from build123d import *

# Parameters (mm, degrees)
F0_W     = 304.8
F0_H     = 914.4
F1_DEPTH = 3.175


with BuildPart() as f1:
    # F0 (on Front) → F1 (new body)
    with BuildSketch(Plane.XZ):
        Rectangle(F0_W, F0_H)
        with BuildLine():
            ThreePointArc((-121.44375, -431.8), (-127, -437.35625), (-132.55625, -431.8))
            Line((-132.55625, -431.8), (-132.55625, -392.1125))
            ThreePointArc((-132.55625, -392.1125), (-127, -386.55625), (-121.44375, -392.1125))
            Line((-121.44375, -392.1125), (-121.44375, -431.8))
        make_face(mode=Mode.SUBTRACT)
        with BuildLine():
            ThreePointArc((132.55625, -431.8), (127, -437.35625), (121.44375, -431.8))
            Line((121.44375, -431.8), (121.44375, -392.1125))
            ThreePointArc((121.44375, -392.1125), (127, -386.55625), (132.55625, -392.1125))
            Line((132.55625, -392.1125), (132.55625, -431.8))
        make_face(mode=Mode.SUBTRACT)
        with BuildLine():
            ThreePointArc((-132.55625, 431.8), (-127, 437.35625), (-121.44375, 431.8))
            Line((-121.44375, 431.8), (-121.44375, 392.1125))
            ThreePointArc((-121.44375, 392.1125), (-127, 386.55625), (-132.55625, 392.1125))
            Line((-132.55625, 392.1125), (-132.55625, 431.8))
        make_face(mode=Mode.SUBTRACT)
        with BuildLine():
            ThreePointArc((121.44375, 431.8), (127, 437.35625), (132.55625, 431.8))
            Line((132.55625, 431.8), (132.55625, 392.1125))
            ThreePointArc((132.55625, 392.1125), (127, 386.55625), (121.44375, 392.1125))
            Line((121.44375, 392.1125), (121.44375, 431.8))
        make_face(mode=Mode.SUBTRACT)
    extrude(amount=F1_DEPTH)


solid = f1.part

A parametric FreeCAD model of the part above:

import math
import FreeCAD as App
import Part
import Sketcher
Q = App.Units.Quantity

doc = App.newDocument("Part")
body = doc.addObject("PartDesign::Body", "Body")

sketch1 = body.newObject("Sketcher::SketchObject", "Sketch")
sketch1.AttachmentSupport = (doc.getObject("XZ_Plane"), [""])
sketch1.MapMode = "FlatFace"
sketch1.addGeometry([
    Part.LineSegment(App.Vector(-152, 457, 0), App.Vector(-152, -457, 0)),
    Part.LineSegment(App.Vector(-152, -457, 0), App.Vector(152, -457, 0)),
    Part.LineSegment(App.Vector(152, -457, 0), App.Vector(152, 457, 0)),
    Part.LineSegment(App.Vector(152, 457, 0), App.Vector(-152, 457, 0)),
    Part.LineSegment(App.Vector(-121, -392, 0), App.Vector(-121, -432, 0)),
    Part.ArcOfCircle(Part.Circle(App.Vector(-127, -432, 0), App.Vector(0, 0, 1), 6), math.radians(180), math.radians(360)),
    Part.LineSegment(App.Vector(-133, -432, 0), App.Vector(-133, -392, 0)),
    Part.ArcOfCircle(Part.Circle(App.Vector(-127, -392, 0), App.Vector(0, 0, 1), 6), math.radians(0), math.radians(180)),
    Part.LineSegment(App.Vector(133, -392, 0), App.Vector(133, -432, 0)),
    Part.ArcOfCircle(Part.Circle(App.Vector(127, -432, 0), App.Vector(0, 0, 1), 6), math.radians(180), math.radians(360)),
    Part.LineSegment(App.Vector(121, -432, 0), App.Vector(121, -392, 0)),
    Part.ArcOfCircle(Part.Circle(App.Vector(127, -392, 0), App.Vector(0, 0, 1), 6), math.radians(0), math.radians(180)),
    Part.LineSegment(App.Vector(-133, 392, 0), App.Vector(-133, 432, 0)),
    Part.ArcOfCircle(Part.Circle(App.Vector(-127, 432, 0), App.Vector(0, 0, 1), 6), math.radians(0), math.radians(180)),
    Part.LineSegment(App.Vector(-121, 432, 0), App.Vector(-121, 392, 0)),
    Part.ArcOfCircle(Part.Circle(App.Vector(-127, 392, 0), App.Vector(0, 0, 1), 6), math.radians(180), math.radians(360)),
    Part.LineSegment(App.Vector(121, 392, 0), App.Vector(121, 432, 0)),
    Part.ArcOfCircle(Part.Circle(App.Vector(127, 432, 0), App.Vector(0, 0, 1), 6), math.radians(0), math.radians(180)),
    Part.LineSegment(App.Vector(133, 432, 0), App.Vector(133, 392, 0)),
    Part.ArcOfCircle(Part.Circle(App.Vector(127, 392, 0), App.Vector(0, 0, 1), 6), math.radians(180), math.radians(360)),
], False)
sketch1.addConstraint([
    Sketcher.Constraint("Coincident", 0, 2, 1, 1),
    Sketcher.Constraint("Coincident", 1, 2, 2, 1),
    Sketcher.Constraint("Coincident", 2, 2, 3, 1),
    Sketcher.Constraint("Coincident", 3, 2, 0, 1),
    Sketcher.Constraint("Tangent", 4, 2, 5, 2),
    Sketcher.Constraint("Tangent", 5, 1, 6, 1),
    Sketcher.Constraint("Tangent", 6, 2, 7, 2),
    Sketcher.Constraint("Tangent", 7, 1, 4, 1),
    Sketcher.Constraint("Tangent", 8, 2, 9, 2),
    Sketcher.Constraint("Tangent", 9, 1, 10, 1),
    Sketcher.Constraint("Tangent", 10, 2, 11, 2),
    Sketcher.Constraint("Tangent", 11, 1, 8, 1),
    Sketcher.Constraint("Tangent", 12, 2, 13, 2),
    Sketcher.Constraint("Tangent", 13, 1, 14, 1),
    Sketcher.Constraint("Tangent", 14, 2, 15, 2),
    Sketcher.Constraint("Tangent", 15, 1, 12, 1),
    Sketcher.Constraint("Tangent", 16, 2, 17, 2),
    Sketcher.Constraint("Tangent", 17, 1, 18, 1),
    Sketcher.Constraint("Tangent", 18, 2, 19, 2),
    Sketcher.Constraint("Tangent", 19, 1, 16, 1),
    Sketcher.Constraint("Vertical", 0),
    Sketcher.Constraint("Horizontal", 1),
    Sketcher.Constraint("Vertical", 2),
    Sketcher.Constraint("Horizontal", 3),
    Sketcher.Constraint("Vertical", 4),
    Sketcher.Constraint("Vertical", 6),
    Sketcher.Constraint("Vertical", 8),
    Sketcher.Constraint("Vertical", 10),
    Sketcher.Constraint("Vertical", 12),
    Sketcher.Constraint("Vertical", 14),
    Sketcher.Constraint("Vertical", 16),
    Sketcher.Constraint("Vertical", 18),
    Sketcher.Constraint("Equal", 7, 9),
    Sketcher.Constraint("Equal", 11, 13),
    Sketcher.Constraint("Equal", 15, 17),
    Sketcher.Constraint("Symmetric", 9, 3, 13, 3, -1, 1),
    Sketcher.Constraint("Symmetric", 5, 3, 17, 3, -1, 1),
    Sketcher.Constraint("Symmetric", 0, 2, 2, 2, -1, 1),
    Sketcher.Constraint("Symmetric", 5, 3, 9, 3, -2),
    Sketcher.Constraint("Horizontal", 7, 3, 11, 3),
    Sketcher.Constraint("Horizontal", 15, 3, 19, 3),
    Sketcher.Constraint("Equal", 10, 12),
    Sketcher.Constraint("DistanceX", 1, 1, 1, 2, Q("12 in")),
    Sketcher.Constraint("DistanceY", 0, 2, 0, 1, Q("36 in")),
    Sketcher.Constraint("DistanceX", 5, 3, -1, 1, Q("5 in")),
    Sketcher.Constraint("DistanceY", 5, 3, -1, 1, Q("17 in")),
    Sketcher.Constraint("Radius", 5, Q("0.21875 in")),
    Sketcher.Constraint("DistanceY", 4, 2, 4, 1, Q("1.5625 in")),
])
pad1 = body.newObject("PartDesign::Pad", "Pad")
pad1.Profile = sketch1
pad1.Length = Q("0.125 in")

doc.recompute()
